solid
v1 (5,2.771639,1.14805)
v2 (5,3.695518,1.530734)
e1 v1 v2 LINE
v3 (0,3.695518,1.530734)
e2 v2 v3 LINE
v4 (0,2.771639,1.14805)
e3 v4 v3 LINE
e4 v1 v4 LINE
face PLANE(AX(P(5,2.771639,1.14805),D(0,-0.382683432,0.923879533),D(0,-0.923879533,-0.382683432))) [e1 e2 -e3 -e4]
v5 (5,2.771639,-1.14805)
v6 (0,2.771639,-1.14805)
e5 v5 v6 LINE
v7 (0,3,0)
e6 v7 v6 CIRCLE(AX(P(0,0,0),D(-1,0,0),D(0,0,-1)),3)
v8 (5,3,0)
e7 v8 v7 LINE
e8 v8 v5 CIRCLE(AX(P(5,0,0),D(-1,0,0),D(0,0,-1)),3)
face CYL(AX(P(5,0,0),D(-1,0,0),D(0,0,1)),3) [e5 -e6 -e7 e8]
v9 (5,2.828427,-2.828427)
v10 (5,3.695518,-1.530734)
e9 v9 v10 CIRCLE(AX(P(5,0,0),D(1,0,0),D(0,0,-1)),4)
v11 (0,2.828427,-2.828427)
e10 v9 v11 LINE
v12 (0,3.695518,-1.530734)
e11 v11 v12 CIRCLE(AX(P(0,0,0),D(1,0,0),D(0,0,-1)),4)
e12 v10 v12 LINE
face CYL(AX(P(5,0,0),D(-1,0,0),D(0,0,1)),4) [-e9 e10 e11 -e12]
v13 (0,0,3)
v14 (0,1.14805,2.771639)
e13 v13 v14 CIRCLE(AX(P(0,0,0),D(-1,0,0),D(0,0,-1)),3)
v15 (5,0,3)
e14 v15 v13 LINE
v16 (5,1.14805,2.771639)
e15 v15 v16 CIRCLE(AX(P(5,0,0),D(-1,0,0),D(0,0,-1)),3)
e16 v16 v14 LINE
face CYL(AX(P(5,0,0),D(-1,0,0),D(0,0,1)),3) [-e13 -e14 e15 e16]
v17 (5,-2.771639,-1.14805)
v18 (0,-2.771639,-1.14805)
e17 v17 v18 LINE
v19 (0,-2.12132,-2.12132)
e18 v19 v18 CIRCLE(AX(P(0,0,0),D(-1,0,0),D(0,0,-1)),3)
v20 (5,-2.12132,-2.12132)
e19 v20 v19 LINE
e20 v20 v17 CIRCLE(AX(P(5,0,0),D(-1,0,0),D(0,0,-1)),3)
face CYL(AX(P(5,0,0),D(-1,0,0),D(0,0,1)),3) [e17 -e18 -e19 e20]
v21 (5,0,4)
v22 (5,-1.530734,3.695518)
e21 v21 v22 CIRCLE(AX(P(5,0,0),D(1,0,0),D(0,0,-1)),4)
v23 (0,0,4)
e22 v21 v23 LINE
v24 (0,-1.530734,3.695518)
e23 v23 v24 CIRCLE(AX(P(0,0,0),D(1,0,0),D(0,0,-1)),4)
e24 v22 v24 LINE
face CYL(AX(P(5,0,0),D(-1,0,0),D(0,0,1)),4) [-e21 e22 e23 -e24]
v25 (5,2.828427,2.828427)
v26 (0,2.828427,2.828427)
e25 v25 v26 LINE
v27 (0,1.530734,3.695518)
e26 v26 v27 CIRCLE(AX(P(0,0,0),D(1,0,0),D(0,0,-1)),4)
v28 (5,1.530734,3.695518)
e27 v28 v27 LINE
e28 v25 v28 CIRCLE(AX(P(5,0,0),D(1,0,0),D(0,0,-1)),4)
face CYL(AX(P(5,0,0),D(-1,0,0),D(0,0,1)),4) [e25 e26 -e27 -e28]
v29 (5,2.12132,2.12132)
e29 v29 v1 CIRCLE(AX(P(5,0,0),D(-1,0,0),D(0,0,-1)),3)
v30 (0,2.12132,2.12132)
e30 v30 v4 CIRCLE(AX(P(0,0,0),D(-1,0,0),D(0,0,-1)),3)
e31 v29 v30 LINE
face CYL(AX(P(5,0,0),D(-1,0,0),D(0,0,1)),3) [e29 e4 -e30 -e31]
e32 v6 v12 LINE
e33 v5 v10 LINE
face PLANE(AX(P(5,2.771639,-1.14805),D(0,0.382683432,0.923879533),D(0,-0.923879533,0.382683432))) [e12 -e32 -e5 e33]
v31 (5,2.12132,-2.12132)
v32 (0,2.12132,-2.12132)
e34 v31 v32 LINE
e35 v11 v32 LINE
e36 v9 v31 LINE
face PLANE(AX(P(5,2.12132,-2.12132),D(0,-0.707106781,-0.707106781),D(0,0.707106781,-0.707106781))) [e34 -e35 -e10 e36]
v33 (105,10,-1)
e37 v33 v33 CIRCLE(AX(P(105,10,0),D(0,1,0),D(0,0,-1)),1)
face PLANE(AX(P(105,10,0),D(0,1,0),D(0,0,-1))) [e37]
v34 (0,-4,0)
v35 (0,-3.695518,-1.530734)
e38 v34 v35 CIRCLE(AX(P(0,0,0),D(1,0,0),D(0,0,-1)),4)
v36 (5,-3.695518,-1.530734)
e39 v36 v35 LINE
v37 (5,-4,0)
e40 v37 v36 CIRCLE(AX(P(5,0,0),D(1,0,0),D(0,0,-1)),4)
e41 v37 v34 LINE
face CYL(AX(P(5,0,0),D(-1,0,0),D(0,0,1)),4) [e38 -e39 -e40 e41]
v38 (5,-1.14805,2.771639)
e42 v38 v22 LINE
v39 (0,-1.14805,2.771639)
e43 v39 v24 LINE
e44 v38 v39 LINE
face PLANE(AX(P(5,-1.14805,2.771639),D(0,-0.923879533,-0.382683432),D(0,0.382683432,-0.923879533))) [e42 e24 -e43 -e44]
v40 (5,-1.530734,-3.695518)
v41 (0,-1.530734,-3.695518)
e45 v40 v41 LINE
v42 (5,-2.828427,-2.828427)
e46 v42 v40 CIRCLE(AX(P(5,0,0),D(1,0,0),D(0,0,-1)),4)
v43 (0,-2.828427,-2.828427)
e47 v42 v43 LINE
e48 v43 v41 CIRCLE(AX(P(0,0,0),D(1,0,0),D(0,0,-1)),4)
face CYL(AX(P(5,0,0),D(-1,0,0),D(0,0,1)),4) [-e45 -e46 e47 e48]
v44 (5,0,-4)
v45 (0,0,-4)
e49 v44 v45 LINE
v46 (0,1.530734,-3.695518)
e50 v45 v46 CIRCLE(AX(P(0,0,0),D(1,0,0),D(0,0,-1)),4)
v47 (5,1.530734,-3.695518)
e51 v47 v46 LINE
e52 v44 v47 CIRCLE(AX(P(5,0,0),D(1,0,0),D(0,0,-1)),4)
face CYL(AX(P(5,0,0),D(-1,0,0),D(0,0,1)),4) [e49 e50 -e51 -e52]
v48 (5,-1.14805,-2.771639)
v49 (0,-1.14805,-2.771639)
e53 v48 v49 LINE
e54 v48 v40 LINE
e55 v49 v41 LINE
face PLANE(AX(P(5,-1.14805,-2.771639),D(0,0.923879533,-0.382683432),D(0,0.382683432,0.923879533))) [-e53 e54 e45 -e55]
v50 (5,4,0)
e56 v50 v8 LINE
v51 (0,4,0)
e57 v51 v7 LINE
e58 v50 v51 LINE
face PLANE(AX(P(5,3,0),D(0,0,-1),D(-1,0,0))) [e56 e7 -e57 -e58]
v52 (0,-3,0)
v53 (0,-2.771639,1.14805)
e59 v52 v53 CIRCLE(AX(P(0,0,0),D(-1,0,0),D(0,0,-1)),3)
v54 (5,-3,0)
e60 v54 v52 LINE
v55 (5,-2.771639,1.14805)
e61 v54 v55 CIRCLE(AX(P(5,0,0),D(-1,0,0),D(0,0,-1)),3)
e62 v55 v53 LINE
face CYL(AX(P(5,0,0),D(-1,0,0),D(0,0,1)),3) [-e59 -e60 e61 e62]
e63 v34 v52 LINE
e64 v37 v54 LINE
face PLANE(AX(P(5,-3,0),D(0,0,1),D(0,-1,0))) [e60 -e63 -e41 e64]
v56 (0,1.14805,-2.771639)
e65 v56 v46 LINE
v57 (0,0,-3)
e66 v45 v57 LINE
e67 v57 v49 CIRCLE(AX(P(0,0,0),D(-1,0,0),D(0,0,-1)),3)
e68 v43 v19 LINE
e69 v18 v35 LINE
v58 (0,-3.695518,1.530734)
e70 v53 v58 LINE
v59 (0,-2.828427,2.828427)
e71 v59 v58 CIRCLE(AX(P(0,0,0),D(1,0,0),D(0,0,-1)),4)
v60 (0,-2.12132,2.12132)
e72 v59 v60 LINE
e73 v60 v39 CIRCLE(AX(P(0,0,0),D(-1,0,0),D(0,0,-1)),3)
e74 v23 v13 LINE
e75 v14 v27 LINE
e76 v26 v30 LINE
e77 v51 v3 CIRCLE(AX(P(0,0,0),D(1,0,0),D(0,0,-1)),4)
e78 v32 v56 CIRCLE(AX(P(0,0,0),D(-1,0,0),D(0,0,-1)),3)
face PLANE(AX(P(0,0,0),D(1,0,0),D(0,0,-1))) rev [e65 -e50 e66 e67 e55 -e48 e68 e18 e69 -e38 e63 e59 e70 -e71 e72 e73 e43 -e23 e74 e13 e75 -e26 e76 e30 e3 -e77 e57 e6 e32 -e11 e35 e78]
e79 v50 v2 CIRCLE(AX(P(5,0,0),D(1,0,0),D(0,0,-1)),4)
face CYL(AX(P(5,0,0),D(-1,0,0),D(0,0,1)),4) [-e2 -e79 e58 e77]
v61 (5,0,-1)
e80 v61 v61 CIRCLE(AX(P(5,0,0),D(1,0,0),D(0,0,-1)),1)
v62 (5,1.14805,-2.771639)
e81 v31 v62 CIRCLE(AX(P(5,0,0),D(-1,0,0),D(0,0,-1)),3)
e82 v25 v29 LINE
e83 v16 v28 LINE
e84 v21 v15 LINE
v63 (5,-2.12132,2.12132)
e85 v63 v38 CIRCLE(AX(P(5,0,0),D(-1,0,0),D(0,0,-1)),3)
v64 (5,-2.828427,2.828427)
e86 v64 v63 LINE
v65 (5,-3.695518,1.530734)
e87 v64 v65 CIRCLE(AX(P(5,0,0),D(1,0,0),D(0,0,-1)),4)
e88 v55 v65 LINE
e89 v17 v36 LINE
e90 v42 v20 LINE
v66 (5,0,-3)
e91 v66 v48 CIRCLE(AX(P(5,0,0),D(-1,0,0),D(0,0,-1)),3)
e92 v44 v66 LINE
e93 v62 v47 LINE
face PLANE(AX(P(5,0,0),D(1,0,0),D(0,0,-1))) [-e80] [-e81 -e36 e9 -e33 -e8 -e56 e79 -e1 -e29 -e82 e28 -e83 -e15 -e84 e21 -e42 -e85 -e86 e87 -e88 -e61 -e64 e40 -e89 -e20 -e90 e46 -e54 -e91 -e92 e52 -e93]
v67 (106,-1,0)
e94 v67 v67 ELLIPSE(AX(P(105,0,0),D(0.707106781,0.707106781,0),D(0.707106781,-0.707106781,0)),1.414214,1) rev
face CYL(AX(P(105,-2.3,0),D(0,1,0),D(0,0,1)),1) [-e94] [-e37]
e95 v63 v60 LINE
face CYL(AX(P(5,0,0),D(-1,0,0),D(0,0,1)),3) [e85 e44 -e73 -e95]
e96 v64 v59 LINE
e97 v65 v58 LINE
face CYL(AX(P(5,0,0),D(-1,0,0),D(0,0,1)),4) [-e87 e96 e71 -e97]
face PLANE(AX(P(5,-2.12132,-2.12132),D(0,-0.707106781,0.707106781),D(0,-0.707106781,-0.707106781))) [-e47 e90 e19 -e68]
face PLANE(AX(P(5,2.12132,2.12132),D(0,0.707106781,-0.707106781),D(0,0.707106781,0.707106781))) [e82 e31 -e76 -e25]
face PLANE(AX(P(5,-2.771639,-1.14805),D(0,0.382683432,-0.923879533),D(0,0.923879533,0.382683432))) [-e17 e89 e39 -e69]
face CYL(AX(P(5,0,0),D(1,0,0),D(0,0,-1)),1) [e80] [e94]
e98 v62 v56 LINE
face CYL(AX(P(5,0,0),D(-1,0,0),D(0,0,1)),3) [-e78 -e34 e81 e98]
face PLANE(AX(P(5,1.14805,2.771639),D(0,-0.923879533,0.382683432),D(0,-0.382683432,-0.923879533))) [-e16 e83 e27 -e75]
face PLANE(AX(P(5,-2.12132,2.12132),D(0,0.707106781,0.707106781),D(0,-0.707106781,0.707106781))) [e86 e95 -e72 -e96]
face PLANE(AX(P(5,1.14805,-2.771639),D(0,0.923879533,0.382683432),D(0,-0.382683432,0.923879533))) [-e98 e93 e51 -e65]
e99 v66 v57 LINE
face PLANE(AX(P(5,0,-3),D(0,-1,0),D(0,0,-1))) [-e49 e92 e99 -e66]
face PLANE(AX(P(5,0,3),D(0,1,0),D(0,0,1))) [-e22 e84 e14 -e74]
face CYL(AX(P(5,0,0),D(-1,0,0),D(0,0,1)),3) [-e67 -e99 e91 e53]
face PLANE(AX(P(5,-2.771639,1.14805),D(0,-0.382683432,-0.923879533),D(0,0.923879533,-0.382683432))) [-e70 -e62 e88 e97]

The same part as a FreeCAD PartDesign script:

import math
import FreeCAD as App
import Part
import Sketcher
Q = App.Units.Quantity

doc = App.newDocument("Part")
body = doc.addObject("PartDesign::Body", "Body")

# Sketch on YZ plane
sketch1 = body.newObject("Sketcher::SketchObject", "Sketch")
sketch1.AttachmentSupport = (doc.getObject("YZ_Plane"), [""])
sketch1.MapMode = "FlatFace"
sketch1.addGeometry(Part.Circle(App.Vector(0, 0, 0), App.Vector(0, 0, 1), 4), False)
sketch1.addConstraint([
    Sketcher.Constraint("Coincident", 0, 3, -1, 1),
    Sketcher.Constraint("Diameter", 0, Q("8 mm")),
])
pad1 = body.newObject("PartDesign::Pad", "Pad")
pad1.Profile = sketch1
pad1.Length = 5

# Sketch on YZ plane
sketch2 = body.newObject("Sketcher::SketchObject", "Sketch001")
sketch2.AttachmentSupport = (doc.getObject("YZ_Plane"), [""])
sketch2.MapMode = "FlatFace"
sketch2.addGeometry([
    Part.LineSegment(App.Vector(4, 0, 0), App.Vector(3, 0, 0)),  # 0
    Part.ArcOfCircle(Part.Circle(App.Vector(0, 0, 0), App.Vector(0, 0, 1), 3), math.radians(-22), math.radians(0)),  # 1
    Part.LineSegment(App.Vector(2.8, -1.1, 0), App.Vector(3.7, -1.5, 0)),  # 2
    Part.ArcOfCircle(Part.Circle(App.Vector(0, 0, 0), App.Vector(0, 0, 1), 4), math.radians(-23), math.radians(0)),  # 3
    Part.LineSegment(App.Vector(2.8, -2.8, 0), App.Vector(2.1, -2.1, 0)),  # 4
    Part.ArcOfCircle(Part.Circle(App.Vector(0, 0, 0), App.Vector(0, 0, 1), 3), math.radians(-67), math.radians(-45)),  # 5
    Part.LineSegment(App.Vector(1.1, -2.8, 0), App.Vector(1.5, -3.7, 0)),  # 6
    Part.ArcOfCircle(Part.Circle(App.Vector(0, 0, 0), App.Vector(0, 0, 1), 4), math.radians(-67), math.radians(-45)),  # 7
    Part.LineSegment(App.Vector(0, -4, 0), App.Vector(0, -3, 0)),  # 8
    Part.ArcOfCircle(Part.Circle(App.Vector(0, 0, 0), App.Vector(0, 0, 1), 3), math.radians(-112), math.radians(-90)),  # 9
    Part.LineSegment(App.Vector(-1.1, -2.8, 0), App.Vector(-1.5, -3.7, 0)),  # 10
    Part.ArcOfCircle(Part.Circle(App.Vector(0, 0, 0), App.Vector(0, 0, 1), 4), math.radians(-113), math.radians(-90)),  # 11
    Part.LineSegment(App.Vector(-2.8, -2.8, 0), App.Vector(-2.1, -2.1, 0)),  # 12
    Part.ArcOfCircle(Part.Circle(App.Vector(0, 0, 0), App.Vector(0, 0, 1), 3), math.radians(-157), math.radians(-135)),  # 13
    Part.LineSegment(App.Vector(-2.8, -1.1, 0), App.Vector(-3.7, -1.5, 0)),  # 14
    Part.ArcOfCircle(Part.Circle(App.Vector(0, 0, 0), App.Vector(0, 0, 1), 4), math.radians(-157), math.radians(-135)),  # 15
    Part.LineSegment(App.Vector(-4, 0, 0), App.Vector(-3, 0, 0)),  # 16
    Part.ArcOfCircle(Part.Circle(App.Vector(0, 0, 0), App.Vector(0, 0, 1), 3), math.radians(158), math.radians(180)),  # 17
    Part.LineSegment(App.Vector(-2.8, 1.1, 0), App.Vector(-3.7, 1.5, 0)),  # 18
    Part.ArcOfCircle(Part.Circle(App.Vector(0, 0, 0), App.Vector(0, 0, 1), 4), math.radians(157), math.radians(180)),  # 19
    Part.LineSegment(App.Vector(-2.8, 2.8, 0), App.Vector(-2.1, 2.1, 0)),  # 20
    Part.ArcOfCircle(Part.Circle(App.Vector(0, 0, 0), App.Vector(0, 0, 1), 3), math.radians(113), math.radians(135)),  # 21
    Part.LineSegment(App.Vector(-1.1, 2.8, 0), App.Vector(-1.5, 3.7, 0)),  # 22
    Part.ArcOfCircle(Part.Circle(App.Vector(0, 0, 0), App.Vector(0, 0, 1), 4), math.radians(113), math.radians(135)),  # 23
    Part.LineSegment(App.Vector(0, 4, 0), App.Vector(0, 3, 0)),  # 24
    Part.ArcOfCircle(Part.Circle(App.Vector(0, 0, 0), App.Vector(0, 0, 1), 3), math.radians(68), math.radians(90)),  # 25
    Part.LineSegment(App.Vector(1.1, 2.8, 0), App.Vector(1.5, 3.7, 0)),  # 26
    Part.ArcOfCircle(Part.Circle(App.Vector(0, 0, 0), App.Vector(0, 0, 1), 4), math.radians(67), math.radians(90)),  # 27
    Part.LineSegment(App.Vector(2.8, 2.8, 0), App.Vector(2.1, 2.1, 0)),  # 28
    Part.ArcOfCircle(Part.Circle(App.Vector(0, 0, 0), App.Vector(0, 0, 1), 3), math.radians(23), math.radians(45)),  # 29
    Part.LineSegment(App.Vector(2.8, 1.1, 0), App.Vector(3.7, 1.5, 0)),  # 30
    Part.ArcOfCircle(Part.Circle(App.Vector(0, 0, 0), App.Vector(0, 0, 1), 4), math.radians(23), math.radians(45)),  # 31
], False)
sketch2.addConstraint([
    Sketcher.Constraint("Coincident", 0, 2, 1, 2),
    Sketcher.Constraint("Coincident", 1, 1, 2, 1),
    Sketcher.Constraint("Coincident", 2, 2, 3, 1),
    Sketcher.Constraint("Coincident", 3, 2, 0, 1),
    Sketcher.Constraint("Coincident", 4, 2, 5, 2),
    Sketcher.Constraint("Coincident", 5, 1, 6, 1),
    Sketcher.Constraint("Coincident", 6, 2, 7, 1),
    Sketcher.Constraint("Coincident", 7, 2, 4, 1),
    Sketcher.Constraint("Coincident", 8, 2, 9, 2),
    Sketcher.Constraint("Coincident", 9, 1, 10, 1),
    Sketcher.Constraint("Coincident", 10, 2, 11, 1),
    Sketcher.Constraint("Coincident", 11, 2, 8, 1),
    Sketcher.Constraint("Coincident", 12, 2, 13, 2),
    Sketcher.Constraint("Coincident", 13, 1, 14, 1),
    Sketcher.Constraint("Coincident", 14, 2, 15, 1),
    Sketcher.Constraint("Coincident", 15, 2, 12, 1),
    Sketcher.Constraint("Coincident", 16, 2, 17, 2),
    Sketcher.Constraint("Coincident", 17, 1, 18, 1),
    Sketcher.Constraint("Coincident", 18, 2, 19, 1),
    Sketcher.Constraint("Coincident", 19, 2, 16, 1),
    Sketcher.Constraint("Coincident", 20, 2, 21, 2),
    Sketcher.Constraint("Coincident", 21, 1, 22, 1),
    Sketcher.Constraint("Coincident", 22, 2, 23, 1),
    Sketcher.Constraint("Coincident", 23, 2, 20, 1),
    Sketcher.Constraint("Coincident", 24, 2, 25, 2),
    Sketcher.Constraint("Coincident", 25, 1, 26, 1),
    Sketcher.Constraint("Coincident", 26, 2, 27, 1),
    Sketcher.Constraint("Coincident", 27, 2, 24, 1),
    Sketcher.Constraint("Coincident", 28, 2, 29, 2),
    Sketcher.Constraint("Coincident", 29, 1, 30, 1),
    Sketcher.Constraint("Coincident", 30, 2, 31, 1),
    Sketcher.Constraint("Coincident", 31, 2, 28, 1),
    Sketcher.Constraint("Horizontal", 0),
    Sketcher.Constraint("Vertical", 8),
    Sketcher.Constraint("Horizontal", 16),
    Sketcher.Constraint("Vertical", 24),
    Sketcher.Constraint("Coincident", 1, 3, -1, 1),
    Sketcher.Constraint("Coincident", 3, 3, -1, 1),
    Sketcher.Constraint("Coincident", 5, 3, -1, 1),
    Sketcher.Constraint("Coincident", 7, 3, -1, 1),
    Sketcher.Constraint("Coincident", 9, 3, -1, 1),
    Sketcher.Constraint("Coincident", 11, 3, -1, 1),
    Sketcher.Constraint("Coincident", 13, 3, -1, 1),
    Sketcher.Constraint("Coincident", 15, 3, -1, 1),
    Sketcher.Constraint("Coincident", 17, 3, -1, 1),
    Sketcher.Constraint("Coincident", 19, 3, -1, 1),
    Sketcher.Constraint("Coincident", 21, 3, -1, 1),
    Sketcher.Constraint("Coincident", 23, 3, -1, 1),
    Sketcher.Constraint("Coincident", 25, 3, -1, 1),
    Sketcher.Constraint("Coincident", 27, 3, -1, 1),
    Sketcher.Constraint("Coincident", 29, 3, -1, 1),
    Sketcher.Constraint("Coincident", 31, 3, -1, 1),
    Sketcher.Constraint("Equal", 1, 5),
    Sketcher.Constraint("Equal", 3, 7),
    Sketcher.Constraint("Equal", 5, 9),
    Sketcher.Constraint("Equal", 7, 11),
    Sketcher.Constraint("Equal", 9, 13),
    Sketcher.Constraint("Equal", 11, 15),
    Sketcher.Constraint("Equal", 13, 17),
    Sketcher.Constraint("Equal", 15, 19),
    Sketcher.Constraint("Equal", 17, 21),
    Sketcher.Constraint("Equal", 19, 23),
    Sketcher.Constraint("Equal", 21, 25),
    Sketcher.Constraint("Equal", 23, 27),
    Sketcher.Constraint("Equal", 25, 29),
    Sketcher.Constraint("Equal", 27, 31),
    Sketcher.Constraint("PointOnObject", 0, 2, -1),
    Sketcher.Constraint("PointOnObject", 8, 2, -2),
    Sketcher.Constraint("PointOnObject", 16, 2, -1),
    Sketcher.Constraint("PointOnObject", 24, 2, -2),
    Sketcher.Constraint("Perpendicular", 2, 10),
    Sketcher.Constraint("Perpendicular", 4, 12),
    Sketcher.Constraint("Perpendicular", 6, 14),
    Sketcher.Constraint("Perpendicular", 10, 18),
    Sketcher.Constraint("Perpendicular", 12, 20),
    Sketcher.Constraint("Perpendicular", 14, 22),
    Sketcher.Constraint("Perpendicular", 18, 26),
    Sketcher.Constraint("Perpendicular", 20, 28),
    Sketcher.Constraint("Perpendicular", 22, 30),
    Sketcher.Constraint("Horizontal", 5, 1, 9, 1),
    Sketcher.Constraint("Horizontal", 6, 2, 10, 2),
    Sketcher.Constraint("Horizontal", 4, 2, 12, 2),
    Sketcher.Constraint("Horizontal", 1, 1, 13, 1),
    Sketcher.Constraint("Horizontal", 7, 2, 15, 2),
    Sketcher.Constraint("Horizontal", 21, 1, 25, 1),
    Sketcher.Constraint("Horizontal", 20, 2, 28, 2),
    Sketcher.Constraint("Horizontal", 17, 1, 29, 1),
    Sketcher.Constraint("Vertical", 13, 1, 17, 1),
    Sketcher.Constraint("Vertical", 12, 2, 20, 2),
    Sketcher.Constraint("Vertical", 9, 1, 21, 1),
    Sketcher.Constraint("Radius", 1, Q("3 mm")),
    Sketcher.Constraint("Radius", 3, Q("4 mm")),
    Sketcher.Constraint("Angle", 2, Q("-22.5 deg")),
    Sketcher.Constraint("DistanceX", 9, 1, 5, 1, Q("2.296101 mm")),
    Sketcher.Constraint("DistanceY", 13, 1, 17, 1, Q("2.296101 mm")),
    Sketcher.Constraint("DistanceX", -1, 1, 4, 2, Q("2.12132 mm")),
])
pocket1 = body.newObject("PartDesign::Pocket", "Pocket")
pocket1.Profile = sketch2
pocket1.Length = 5
pocket1.Reversed = True

# Sketch on YZ plane
sketch3 = body.newObject("Sketcher::SketchObject", "Sketch002")
sketch3.AttachmentSupport = (doc.getObject("YZ_Plane"), [""])
sketch3.MapMode = "FlatFace"
sketch3.AttachmentOffset = App.Placement(App.Vector(0, 0, 5), App.Rotation())
sketch3.addGeometry(Part.Circle(App.Vector(0, 0, 0), App.Vector(0, 0, 1), 1), False)
sketch3.addConstraint([
    Sketcher.Constraint("Coincident", 0, 3, -1, 1),
    Sketcher.Constraint("Diameter", 0, Q("2 mm")),
])

# Sketch on XY plane
sketch4 = body.newObject("Sketcher::SketchObject", "Sketch003")
sketch4.AttachmentSupport = (doc.getObject("XY_Plane"), [""])
sketch4.MapMode = "FlatFace"
sketch4.addGeometry([
    Part.LineSegment(App.Vector(5, 0, 0), App.Vector(105, 0, 0)),
    Part.LineSegment(App.Vector(105, 0, 0), App.Vector(105, 10, 0)),
], False)
sketch4.addConstraint([
    Sketcher.Constraint("Coincident", 0, 2, 1, 1),
    Sketcher.Constraint("Horizontal", 0),
    Sketcher.Constraint("Vertical", 1),
    Sketcher.Constraint("PointOnObject", 0, 1, -1),
    Sketcher.Constraint("DistanceX", 0, 1, 0, 2, Q("100 mm")),
    Sketcher.Constraint("DistanceY", 1, 1, 1, 2, Q("10 mm")),
    Sketcher.Constraint("DistanceX", -1, 1, 0, 1, Q("5 mm")),
])
doc.recompute()

additivepipe = body.newObject("PartDesign::AdditivePipe", "AdditivePipe")
additivepipe.Profile = sketch3
additivepipe.Spine = (sketch4, ["Edge1", "Edge2"])
additivepipe.Transition = "Right corner"

doc.recompute()
